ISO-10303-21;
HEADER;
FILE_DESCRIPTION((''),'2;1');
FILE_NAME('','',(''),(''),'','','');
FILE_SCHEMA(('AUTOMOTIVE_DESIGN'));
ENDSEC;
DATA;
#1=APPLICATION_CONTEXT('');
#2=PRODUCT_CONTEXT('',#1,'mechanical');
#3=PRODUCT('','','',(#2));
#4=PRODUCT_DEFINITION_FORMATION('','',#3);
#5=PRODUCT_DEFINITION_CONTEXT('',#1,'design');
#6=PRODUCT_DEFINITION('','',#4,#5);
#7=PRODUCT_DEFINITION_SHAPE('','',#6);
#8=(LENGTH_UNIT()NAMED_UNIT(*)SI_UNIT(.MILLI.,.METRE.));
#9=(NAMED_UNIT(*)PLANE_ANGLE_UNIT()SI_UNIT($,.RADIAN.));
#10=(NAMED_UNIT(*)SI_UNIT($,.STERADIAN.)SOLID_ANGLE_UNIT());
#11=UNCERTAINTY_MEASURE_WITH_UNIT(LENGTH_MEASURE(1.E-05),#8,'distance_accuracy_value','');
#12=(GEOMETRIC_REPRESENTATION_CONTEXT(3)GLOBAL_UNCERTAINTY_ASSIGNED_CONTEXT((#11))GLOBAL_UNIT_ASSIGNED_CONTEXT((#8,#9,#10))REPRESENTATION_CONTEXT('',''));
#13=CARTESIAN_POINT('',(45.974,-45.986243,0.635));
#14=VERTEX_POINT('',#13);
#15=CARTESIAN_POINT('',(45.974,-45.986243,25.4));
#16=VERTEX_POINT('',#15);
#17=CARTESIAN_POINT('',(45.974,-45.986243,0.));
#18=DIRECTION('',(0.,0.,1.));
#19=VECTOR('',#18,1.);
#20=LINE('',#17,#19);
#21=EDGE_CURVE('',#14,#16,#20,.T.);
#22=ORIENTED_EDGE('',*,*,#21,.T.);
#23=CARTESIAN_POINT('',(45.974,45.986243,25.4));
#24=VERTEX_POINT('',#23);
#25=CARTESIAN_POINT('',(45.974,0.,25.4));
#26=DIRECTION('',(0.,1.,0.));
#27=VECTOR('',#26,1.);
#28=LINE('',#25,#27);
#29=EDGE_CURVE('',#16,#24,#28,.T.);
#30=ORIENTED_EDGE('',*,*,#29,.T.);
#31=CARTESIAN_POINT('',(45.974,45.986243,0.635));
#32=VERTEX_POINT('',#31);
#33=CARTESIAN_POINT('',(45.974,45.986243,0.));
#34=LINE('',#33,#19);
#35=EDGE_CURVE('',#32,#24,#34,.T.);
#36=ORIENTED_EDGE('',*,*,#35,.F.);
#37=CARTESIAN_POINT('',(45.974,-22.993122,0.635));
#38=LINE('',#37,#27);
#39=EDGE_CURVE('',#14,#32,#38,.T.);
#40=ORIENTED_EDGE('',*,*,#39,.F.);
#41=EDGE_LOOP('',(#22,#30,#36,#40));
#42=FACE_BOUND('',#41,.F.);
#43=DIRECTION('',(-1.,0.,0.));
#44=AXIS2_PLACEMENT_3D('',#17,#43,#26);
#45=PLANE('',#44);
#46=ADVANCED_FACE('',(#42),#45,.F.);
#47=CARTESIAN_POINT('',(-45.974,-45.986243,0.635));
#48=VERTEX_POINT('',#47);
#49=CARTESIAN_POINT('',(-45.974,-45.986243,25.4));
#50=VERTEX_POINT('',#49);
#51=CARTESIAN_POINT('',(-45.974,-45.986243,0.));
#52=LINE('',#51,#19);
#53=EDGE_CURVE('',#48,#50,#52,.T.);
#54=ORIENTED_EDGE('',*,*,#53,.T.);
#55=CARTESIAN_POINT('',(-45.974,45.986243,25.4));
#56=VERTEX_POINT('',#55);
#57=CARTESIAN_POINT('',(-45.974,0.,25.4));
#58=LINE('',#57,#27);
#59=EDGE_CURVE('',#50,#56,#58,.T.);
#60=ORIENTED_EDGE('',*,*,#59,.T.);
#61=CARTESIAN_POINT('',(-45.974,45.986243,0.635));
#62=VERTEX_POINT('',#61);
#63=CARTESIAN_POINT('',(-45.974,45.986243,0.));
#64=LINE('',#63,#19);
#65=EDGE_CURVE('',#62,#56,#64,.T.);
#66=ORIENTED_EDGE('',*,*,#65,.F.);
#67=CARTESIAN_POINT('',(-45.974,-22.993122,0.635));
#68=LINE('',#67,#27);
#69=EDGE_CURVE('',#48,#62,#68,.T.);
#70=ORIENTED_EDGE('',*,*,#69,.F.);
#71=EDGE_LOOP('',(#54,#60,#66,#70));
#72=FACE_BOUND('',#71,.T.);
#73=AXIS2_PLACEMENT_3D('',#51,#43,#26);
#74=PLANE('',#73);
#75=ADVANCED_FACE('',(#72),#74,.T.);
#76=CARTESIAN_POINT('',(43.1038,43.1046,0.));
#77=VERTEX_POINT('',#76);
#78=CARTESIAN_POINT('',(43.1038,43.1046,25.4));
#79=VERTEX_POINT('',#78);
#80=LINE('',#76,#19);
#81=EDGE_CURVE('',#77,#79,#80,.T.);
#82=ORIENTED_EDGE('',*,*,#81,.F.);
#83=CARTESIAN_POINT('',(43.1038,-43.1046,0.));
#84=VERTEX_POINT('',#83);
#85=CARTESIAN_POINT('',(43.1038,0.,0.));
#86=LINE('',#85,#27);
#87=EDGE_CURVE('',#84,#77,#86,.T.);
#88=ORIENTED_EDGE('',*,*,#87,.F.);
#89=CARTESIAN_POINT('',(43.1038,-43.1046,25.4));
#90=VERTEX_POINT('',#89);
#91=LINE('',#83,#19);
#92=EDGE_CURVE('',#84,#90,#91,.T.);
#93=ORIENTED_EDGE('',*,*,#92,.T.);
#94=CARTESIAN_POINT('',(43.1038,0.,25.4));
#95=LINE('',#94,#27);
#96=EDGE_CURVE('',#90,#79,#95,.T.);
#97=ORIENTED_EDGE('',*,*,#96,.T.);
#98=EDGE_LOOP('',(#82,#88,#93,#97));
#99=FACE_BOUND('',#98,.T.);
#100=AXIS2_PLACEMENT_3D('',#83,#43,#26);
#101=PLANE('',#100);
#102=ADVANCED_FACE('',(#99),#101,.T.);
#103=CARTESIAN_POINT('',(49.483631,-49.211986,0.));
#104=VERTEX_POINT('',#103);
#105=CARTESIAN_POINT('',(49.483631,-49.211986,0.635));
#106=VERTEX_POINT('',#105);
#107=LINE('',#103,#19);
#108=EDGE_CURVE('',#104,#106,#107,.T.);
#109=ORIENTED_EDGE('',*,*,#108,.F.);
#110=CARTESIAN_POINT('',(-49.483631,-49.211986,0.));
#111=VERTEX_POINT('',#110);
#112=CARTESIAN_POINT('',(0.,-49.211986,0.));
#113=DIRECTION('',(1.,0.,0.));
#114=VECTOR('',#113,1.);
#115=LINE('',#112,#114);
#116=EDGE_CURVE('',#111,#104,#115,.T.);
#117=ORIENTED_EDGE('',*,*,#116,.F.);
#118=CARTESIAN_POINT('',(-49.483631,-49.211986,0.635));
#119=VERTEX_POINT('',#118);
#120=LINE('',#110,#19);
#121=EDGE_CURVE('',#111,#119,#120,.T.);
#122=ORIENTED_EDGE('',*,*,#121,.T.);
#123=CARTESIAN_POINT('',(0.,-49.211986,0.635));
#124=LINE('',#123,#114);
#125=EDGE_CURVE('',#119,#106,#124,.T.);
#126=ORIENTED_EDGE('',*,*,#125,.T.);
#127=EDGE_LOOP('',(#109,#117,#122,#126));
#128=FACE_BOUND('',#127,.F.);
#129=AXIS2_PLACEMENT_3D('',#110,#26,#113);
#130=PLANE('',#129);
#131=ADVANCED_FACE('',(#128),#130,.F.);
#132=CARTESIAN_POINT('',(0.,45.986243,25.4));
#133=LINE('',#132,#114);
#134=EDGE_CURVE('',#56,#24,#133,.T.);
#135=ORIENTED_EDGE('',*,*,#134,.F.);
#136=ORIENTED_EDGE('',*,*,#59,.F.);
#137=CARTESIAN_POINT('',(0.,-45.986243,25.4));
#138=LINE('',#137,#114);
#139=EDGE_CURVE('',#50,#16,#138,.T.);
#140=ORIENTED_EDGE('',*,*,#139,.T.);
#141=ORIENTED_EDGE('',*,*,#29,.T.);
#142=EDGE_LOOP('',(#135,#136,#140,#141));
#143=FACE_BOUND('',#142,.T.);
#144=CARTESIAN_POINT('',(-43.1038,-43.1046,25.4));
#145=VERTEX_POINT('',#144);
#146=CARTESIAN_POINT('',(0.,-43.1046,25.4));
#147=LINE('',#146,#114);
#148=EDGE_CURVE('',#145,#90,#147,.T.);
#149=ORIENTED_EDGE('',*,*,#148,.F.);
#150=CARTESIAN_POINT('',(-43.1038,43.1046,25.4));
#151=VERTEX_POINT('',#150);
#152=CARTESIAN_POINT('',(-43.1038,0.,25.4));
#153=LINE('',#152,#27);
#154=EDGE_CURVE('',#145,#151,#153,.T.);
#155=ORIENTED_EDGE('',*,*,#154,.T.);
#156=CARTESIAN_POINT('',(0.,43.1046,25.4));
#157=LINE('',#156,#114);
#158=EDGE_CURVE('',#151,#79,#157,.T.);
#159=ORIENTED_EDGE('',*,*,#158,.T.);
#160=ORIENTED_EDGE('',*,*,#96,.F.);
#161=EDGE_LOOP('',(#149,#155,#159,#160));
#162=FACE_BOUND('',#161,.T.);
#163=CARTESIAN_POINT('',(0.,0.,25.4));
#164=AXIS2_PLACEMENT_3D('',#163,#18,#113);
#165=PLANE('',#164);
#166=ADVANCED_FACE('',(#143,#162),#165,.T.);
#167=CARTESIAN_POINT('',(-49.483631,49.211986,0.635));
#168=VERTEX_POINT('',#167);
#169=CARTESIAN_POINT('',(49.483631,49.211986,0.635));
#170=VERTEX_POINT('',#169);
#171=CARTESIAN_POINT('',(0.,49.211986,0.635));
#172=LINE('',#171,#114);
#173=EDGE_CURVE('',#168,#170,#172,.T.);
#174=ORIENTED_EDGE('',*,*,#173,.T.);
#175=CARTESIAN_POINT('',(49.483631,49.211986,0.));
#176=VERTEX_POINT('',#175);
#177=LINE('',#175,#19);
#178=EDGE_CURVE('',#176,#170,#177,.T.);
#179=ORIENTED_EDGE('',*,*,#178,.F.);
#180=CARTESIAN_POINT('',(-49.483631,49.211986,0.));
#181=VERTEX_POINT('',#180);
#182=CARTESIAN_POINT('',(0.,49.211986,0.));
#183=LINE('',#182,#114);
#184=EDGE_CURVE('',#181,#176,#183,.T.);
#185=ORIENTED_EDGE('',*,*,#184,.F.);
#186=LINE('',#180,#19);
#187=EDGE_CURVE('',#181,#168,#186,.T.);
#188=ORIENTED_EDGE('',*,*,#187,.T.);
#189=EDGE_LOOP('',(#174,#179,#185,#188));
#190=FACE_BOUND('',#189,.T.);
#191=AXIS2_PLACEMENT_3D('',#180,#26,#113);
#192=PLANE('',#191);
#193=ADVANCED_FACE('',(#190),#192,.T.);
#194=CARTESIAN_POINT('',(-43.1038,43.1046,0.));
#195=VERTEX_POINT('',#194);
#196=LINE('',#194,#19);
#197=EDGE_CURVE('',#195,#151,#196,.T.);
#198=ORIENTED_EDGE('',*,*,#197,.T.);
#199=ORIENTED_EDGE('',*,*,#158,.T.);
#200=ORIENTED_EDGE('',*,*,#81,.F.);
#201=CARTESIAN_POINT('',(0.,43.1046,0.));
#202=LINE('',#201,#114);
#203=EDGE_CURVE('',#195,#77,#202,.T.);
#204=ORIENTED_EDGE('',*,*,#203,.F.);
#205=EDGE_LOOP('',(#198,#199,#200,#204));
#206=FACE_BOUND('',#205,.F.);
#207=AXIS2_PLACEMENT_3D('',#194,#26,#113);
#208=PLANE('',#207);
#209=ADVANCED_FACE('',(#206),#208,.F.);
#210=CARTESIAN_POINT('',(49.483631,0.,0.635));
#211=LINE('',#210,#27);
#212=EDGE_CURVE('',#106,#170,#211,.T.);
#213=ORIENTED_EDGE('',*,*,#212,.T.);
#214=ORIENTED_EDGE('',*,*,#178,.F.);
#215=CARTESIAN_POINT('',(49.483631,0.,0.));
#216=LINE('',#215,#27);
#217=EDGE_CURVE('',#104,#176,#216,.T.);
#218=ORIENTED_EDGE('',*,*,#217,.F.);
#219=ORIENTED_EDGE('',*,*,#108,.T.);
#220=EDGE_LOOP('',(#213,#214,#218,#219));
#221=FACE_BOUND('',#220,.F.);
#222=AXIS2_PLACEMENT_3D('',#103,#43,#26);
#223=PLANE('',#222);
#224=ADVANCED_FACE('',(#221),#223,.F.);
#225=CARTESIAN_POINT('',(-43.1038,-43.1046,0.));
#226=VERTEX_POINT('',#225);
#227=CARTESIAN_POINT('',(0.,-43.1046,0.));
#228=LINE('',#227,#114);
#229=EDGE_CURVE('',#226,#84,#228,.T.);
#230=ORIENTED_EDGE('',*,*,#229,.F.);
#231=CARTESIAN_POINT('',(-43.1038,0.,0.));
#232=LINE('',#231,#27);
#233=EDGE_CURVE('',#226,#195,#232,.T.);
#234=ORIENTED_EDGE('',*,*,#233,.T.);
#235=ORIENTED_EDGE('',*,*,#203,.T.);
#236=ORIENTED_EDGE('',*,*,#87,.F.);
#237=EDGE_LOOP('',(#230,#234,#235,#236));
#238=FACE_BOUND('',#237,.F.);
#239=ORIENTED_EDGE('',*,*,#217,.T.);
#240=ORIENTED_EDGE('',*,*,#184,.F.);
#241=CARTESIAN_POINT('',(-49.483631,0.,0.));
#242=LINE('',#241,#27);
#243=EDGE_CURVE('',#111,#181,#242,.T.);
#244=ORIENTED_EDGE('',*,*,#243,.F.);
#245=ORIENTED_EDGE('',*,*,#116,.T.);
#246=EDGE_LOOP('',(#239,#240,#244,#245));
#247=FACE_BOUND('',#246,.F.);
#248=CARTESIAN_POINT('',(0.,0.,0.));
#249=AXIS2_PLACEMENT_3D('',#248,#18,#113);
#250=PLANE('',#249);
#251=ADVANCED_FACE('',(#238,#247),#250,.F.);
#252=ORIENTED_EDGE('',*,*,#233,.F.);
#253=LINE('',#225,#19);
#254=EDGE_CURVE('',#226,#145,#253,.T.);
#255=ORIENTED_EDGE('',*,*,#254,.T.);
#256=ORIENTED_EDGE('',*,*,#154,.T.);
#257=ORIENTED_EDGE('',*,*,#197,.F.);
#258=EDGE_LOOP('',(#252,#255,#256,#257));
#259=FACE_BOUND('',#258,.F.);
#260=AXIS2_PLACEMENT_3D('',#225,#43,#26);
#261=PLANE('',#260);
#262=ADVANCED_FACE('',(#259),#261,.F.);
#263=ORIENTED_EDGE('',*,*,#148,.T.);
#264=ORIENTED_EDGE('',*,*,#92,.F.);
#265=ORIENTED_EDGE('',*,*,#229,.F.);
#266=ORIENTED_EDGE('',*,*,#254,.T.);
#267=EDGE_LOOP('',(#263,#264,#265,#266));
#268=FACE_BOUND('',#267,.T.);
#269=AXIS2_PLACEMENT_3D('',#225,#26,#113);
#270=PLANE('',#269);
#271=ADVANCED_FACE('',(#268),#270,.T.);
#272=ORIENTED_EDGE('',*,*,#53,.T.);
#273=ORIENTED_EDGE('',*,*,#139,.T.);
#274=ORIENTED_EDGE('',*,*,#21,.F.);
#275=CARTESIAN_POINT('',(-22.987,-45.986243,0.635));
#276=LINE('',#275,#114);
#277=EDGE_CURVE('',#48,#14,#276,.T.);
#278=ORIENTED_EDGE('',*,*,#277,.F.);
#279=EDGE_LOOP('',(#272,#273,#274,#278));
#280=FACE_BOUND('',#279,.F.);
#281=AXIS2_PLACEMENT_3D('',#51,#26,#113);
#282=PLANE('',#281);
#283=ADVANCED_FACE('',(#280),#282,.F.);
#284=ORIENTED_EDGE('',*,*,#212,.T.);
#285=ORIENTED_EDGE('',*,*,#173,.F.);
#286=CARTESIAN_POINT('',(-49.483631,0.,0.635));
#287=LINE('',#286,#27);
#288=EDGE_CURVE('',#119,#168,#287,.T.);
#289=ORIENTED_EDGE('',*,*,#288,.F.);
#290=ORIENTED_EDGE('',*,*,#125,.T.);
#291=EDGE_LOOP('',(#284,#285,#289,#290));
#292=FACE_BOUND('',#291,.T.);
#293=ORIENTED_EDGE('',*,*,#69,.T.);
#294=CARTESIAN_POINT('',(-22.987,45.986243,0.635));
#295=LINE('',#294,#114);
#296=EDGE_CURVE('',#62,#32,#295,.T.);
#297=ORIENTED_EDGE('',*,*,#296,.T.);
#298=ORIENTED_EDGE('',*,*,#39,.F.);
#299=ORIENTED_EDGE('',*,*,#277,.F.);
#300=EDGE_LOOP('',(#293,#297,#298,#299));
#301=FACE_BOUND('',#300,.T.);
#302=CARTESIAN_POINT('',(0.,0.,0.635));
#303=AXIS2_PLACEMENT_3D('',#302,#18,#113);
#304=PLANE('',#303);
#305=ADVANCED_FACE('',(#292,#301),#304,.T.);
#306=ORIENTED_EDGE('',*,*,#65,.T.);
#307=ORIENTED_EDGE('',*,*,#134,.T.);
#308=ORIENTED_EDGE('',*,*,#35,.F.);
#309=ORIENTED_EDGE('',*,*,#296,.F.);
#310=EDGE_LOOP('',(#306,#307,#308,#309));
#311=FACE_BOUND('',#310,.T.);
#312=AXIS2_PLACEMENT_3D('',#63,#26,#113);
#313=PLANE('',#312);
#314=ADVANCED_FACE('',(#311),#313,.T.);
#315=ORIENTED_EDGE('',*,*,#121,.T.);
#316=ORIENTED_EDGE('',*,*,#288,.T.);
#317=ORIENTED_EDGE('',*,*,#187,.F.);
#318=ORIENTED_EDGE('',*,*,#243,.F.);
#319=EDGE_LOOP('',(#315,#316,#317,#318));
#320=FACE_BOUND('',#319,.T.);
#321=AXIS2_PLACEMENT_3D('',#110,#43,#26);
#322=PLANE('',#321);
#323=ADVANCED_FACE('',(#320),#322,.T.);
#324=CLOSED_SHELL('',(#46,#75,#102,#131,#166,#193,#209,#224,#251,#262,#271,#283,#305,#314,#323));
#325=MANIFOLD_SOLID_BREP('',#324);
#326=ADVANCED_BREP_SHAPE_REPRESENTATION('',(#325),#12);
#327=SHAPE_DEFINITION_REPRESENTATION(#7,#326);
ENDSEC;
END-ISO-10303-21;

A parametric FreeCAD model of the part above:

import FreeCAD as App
import Part
import Sketcher
Q = App.Units.Quantity

doc = App.newDocument("Part")
body = doc.addObject("PartDesign::Body", "Body")

sketch1 = doc.addObject("Sketcher::SketchObject", "Sketch")
body.addObject(sketch1)
sketch1.AttachmentSupport = (doc.XY_Plane, [""])
sketch1.MapMode = "FlatFace"
sketch1.addGeometry([
    Part.LineSegment(App.Vector(-45.974, 45.986243, 0), App.Vector(-45.974, -45.986243, 0)),
    Part.LineSegment(App.Vector(-45.974, -45.986243, 0), App.Vector(45.974, -45.986243, 0)),
    Part.LineSegment(App.Vector(45.974, -45.986243, 0), App.Vector(45.974, 45.986243, 0)),
    Part.LineSegment(App.Vector(45.974, 45.986243, 0), App.Vector(-45.974, 45.986243, 0)),
    Part.LineSegment(App.Vector(43.1038, -43.1046, 0), App.Vector(-43.1038, -43.1046, 0)),
    Part.LineSegment(App.Vector(-43.1038, -43.1046, 0), App.Vector(-43.1038, 43.1046, 0)),
    Part.LineSegment(App.Vector(-43.1038, 43.1046, 0), App.Vector(43.1038, 43.1046, 0)),
    Part.LineSegment(App.Vector(43.1038, 43.1046, 0), App.Vector(43.1038, -43.1046, 0)),
], False)
sketch1.addConstraint([
    Sketcher.Constraint("Coincident", 0, 2, 1, 1),
    Sketcher.Constraint("Coincident", 1, 2, 2, 1),
    Sketcher.Constraint("Coincident", 2, 2, 3, 1),
    Sketcher.Constraint("Coincident", 3, 2, 0, 1),
    Sketcher.Constraint("Coincident", 4, 2, 5, 1),
    Sketcher.Constraint("Coincident", 5, 2, 6, 1),
    Sketcher.Constraint("Coincident", 6, 2, 7, 1),
    Sketcher.Constraint("Coincident", 7, 2, 4, 1),
    Sketcher.Constraint("Vertical", 0),
    Sketcher.Constraint("Horizontal", 1),
    Sketcher.Constraint("Vertical", 2),
    Sketcher.Constraint("Horizontal", 3),
    Sketcher.Constraint("Horizontal", 4),
    Sketcher.Constraint("Vertical", 5),
    Sketcher.Constraint("Horizontal", 6),
    Sketcher.Constraint("Vertical", 7),
    Sketcher.Constraint("Symmetric", 0, 2, 2, 2, -1, 1),
    Sketcher.Constraint("Symmetric", 4, 2, 6, 2, -1, 1),
    Sketcher.Constraint("DistanceX", 1, 1, 1, 2, Q("3.62 in")),
    Sketcher.Constraint("DistanceX", 4, 2, 4, 1, Q("3.394 in")),
    Sketcher.Constraint("DistanceY", 5, 1, 5, 2, 86.2092),
    Sketcher.Constraint("DistanceY", 0, 2, 0, 1, 91.972486),
])
pad1 = doc.addObject("PartDesign::Pad", "Pad")
body.addObject(pad1)
pad1.Profile = sketch1
pad1.Length = Q("1 in")

sketch2 = doc.addObject("Sketcher::SketchObject", "Sketch001")
body.addObject(sketch2)
sketch2.AttachmentSupport = (doc.XY_Plane, [""])
sketch2.MapMode = "FlatFace"
sketch2.addGeometry([
    Part.LineSegment(App.Vector(-49.483631, 49.211986, 0), App.Vector(-49.483631, -49.211986, 0)),
    Part.LineSegment(App.Vector(-49.483631, -49.211986, 0), App.Vector(49.483631, -49.211986, 0)),
    Part.LineSegment(App.Vector(49.483631, -49.211986, 0), App.Vector(49.483631, 49.211986, 0)),
    Part.LineSegment(App.Vector(49.483631, 49.211986, 0), App.Vector(-49.483631, 49.211986, 0)),
    Part.LineSegment(App.Vector(45.814678, -45.940876, 0), App.Vector(-45.814678, -45.940876, 0)),
    Part.LineSegment(App.Vector(-45.814678, -45.940876, 0), App.Vector(-45.814678, 45.940876, 0)),
    Part.LineSegment(App.Vector(-45.814678, 45.940876, 0), App.Vector(45.814678, 45.940876, 0)),
    Part.LineSegment(App.Vector(45.814678, 45.940876, 0), App.Vector(45.814678, -45.940876, 0)),
], False)
sketch2.addConstraint([
    Sketcher.Constraint("Coincident", 0, 2, 1, 1),
    Sketcher.Constraint("Coincident", 1, 2, 2, 1),
    Sketcher.Constraint("Coincident", 2, 2, 3, 1),
    Sketcher.Constraint("Coincident", 3, 2, 0, 1),
    Sketcher.Constraint("Coincident", 4, 2, 5, 1),
    Sketcher.Constraint("Coincident", 5, 2, 6, 1),
    Sketcher.Constraint("Coincident", 6, 2, 7, 1),
    Sketcher.Constraint("Coincident", 7, 2, 4, 1),
    Sketcher.Constraint("Vertical", 0),
    Sketcher.Constraint("Horizontal", 1),
    Sketcher.Constraint("Vertical", 2),
    Sketcher.Constraint("Horizontal", 3),
    Sketcher.Constraint("Horizontal", 4),
    Sketcher.Constraint("Vertical", 5),
    Sketcher.Constraint("Horizontal", 6),
    Sketcher.Constraint("Vertical", 7),
    Sketcher.Constraint("Symmetric", 0, 2, 2, 2, -1, 1),
    Sketcher.Constraint("Symmetric", 4, 2, 6, 2, -1, 1),
    Sketcher.Constraint("DistanceX", 1, 1, 1, 2, 98.967262),
    Sketcher.Constraint("DistanceX", 4, 2, 4, 1, 91.629356),
    Sketcher.Constraint("DistanceY", 0, 2, 0, 1, 98.423972),
    Sketcher.Constraint("DistanceY", 5, 1, 5, 2, 91.881752),
])
pad2 = doc.addObject("PartDesign::Pad", "Pad001")
body.addObject(pad2)
pad2.Profile = sketch2
pad2.Length = Q("0.025 in")

doc.recompute()
